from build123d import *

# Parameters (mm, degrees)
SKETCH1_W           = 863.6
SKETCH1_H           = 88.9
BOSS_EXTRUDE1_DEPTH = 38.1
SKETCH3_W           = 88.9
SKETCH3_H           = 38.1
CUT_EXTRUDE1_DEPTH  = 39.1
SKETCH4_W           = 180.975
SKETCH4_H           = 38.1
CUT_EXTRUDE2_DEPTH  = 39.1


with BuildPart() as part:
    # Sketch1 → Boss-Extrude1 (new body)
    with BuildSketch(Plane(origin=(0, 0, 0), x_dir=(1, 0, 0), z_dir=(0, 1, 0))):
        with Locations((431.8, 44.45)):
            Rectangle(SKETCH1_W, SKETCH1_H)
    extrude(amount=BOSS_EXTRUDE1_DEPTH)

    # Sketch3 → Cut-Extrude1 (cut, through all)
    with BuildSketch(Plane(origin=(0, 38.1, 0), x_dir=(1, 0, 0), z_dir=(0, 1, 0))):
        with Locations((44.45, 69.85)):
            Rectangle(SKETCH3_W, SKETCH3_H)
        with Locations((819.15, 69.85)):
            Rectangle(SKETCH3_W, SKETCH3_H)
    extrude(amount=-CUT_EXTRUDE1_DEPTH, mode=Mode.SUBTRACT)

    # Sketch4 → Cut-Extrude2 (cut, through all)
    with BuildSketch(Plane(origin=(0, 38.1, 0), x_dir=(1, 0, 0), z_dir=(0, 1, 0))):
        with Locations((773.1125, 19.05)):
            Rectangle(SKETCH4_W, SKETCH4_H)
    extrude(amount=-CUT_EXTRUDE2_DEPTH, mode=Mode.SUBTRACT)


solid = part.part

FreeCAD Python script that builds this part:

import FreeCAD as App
import Part
import Sketcher
Q = App.Units.Quantity


def add_polygon(sketch, points):
    """Adds a closed chain of lines whose ends are joined by coincident constraints."""
    first, n = sketch.GeometryCount, len(points)
    for a, b in zip(points, points[1:] + points[:1]):
        sketch.addGeometry(Part.LineSegment(App.Vector(*a, 0), App.Vector(*b, 0)), False)
    for i in range(n):
        sketch.addConstraint(Sketcher.Constraint("Coincident", first + i, 2, first + (i + 1) % n, 1))

doc = App.newDocument("Part")
body = doc.addObject("PartDesign::Body", "Body")

# Sketch on XZ plane
sketch1 = body.newObject("Sketcher::SketchObject", "Sketch")
sketch1.AttachmentSupport = (doc.getObject("XZ_Plane"), [""])
sketch1.MapMode = "FlatFace"
add_polygon(sketch1, [(0, -88.9), (0, 0), (863.6, 0), (863.6, -88.9)])  # lines 0-3
sketch1.addConstraint([
    Sketcher.Constraint("Vertical", 0),
    Sketcher.Constraint("Horizontal", 1),
    Sketcher.Constraint("Vertical", 2),
    Sketcher.Constraint("Horizontal", 3),
    Sketcher.Constraint("Coincident", 0, 2, -1, 1),
    Sketcher.Constraint("DistanceX", 1, 1, 1, 2, Q("34 in")),
    Sketcher.Constraint("DistanceY", 0, 1, 0, 2, Q("3.5 in")),
])
pad1 = body.newObject("PartDesign::Pad", "Pad")
pad1.Profile = sketch1
pad1.Length = Q("1.5 in")
pad1.Reversed = True

# Sketch on XZ plane
sketch2 = body.newObject("Sketcher::SketchObject", "Sketch001")
sketch2.AttachmentSupport = (doc.getObject("XZ_Plane"), [""])
sketch2.MapMode = "FlatFace"
sketch2.AttachmentOffset = App.Placement(App.Vector(0, 0, -1.5 * 25.4), App.Rotation())
add_polygon(sketch2, [(0, -88.9), (0, -50.8), (88.9, -50.8), (88.9, -88.9)])  # lines 0-3
add_polygon(sketch2, [(774.7, -88.9), (774.7, -50.8), (863.6, -50.8), (863.6, -88.9)])  # lines 4-7
sketch2.addConstraint([
    Sketcher.Constraint("Vertical", 0),
    Sketcher.Constraint("Horizontal", 1),
    Sketcher.Constraint("Vertical", 2),
    Sketcher.Constraint("Horizontal", 3),
    Sketcher.Constraint("Vertical", 4),
    Sketcher.Constraint("Horizontal", 5),
    Sketcher.Constraint("Vertical", 6),
    Sketcher.Constraint("Horizontal", 7),
    Sketcher.Constraint("PointOnObject", 0, 2, -2),
    Sketcher.Constraint("Horizontal", 1, 2, 4, 2),
    Sketcher.Constraint("Horizontal", 3, 2, 6, 2),
    Sketcher.Constraint("Equal", 3, 5),
    Sketcher.Constraint("DistanceX", 1, 1, 1, 2, Q("3.5 in")),
    Sketcher.Constraint("DistanceY", 0, 1, 0, 2, Q("1.5 in")),
    Sketcher.Constraint("DistanceY", 0, 2, -1, 1, Q("2 in")),
    Sketcher.Constraint("DistanceX", -1, 1, 5, 2, Q("34 in")),
])
pocket1 = body.newObject("PartDesign::Pocket", "Pocket")
pocket1.Profile = sketch2
pocket1.Type = "ThroughAll"
pocket1.Reversed = True

# Sketch on XZ plane
sketch3 = body.newObject("Sketcher::SketchObject", "Sketch002")
sketch3.AttachmentSupport = (doc.getObject("XZ_Plane"), [""])
sketch3.MapMode = "FlatFace"
sketch3.AttachmentOffset = App.Placement(App.Vector(0, 0, -1.5 * 25.4), App.Rotation())
add_polygon(sketch3, [(682.625, -38.1), (682.625, 0), (863.6, 0), (863.6, -38.1)])  # lines 0-3
sketch3.addConstraint([
    Sketcher.Constraint("Vertical", 0),
    Sketcher.Constraint("Horizontal", 1),
    Sketcher.Constraint("Vertical", 2),
    Sketcher.Constraint("Horizontal", 3),
    Sketcher.Constraint("PointOnObject", 0, 2, -1),
    Sketcher.Constraint("DistanceY", 0, 1, 0, 2, Q("1.5 in")),
    Sketcher.Constraint("DistanceX", -1, 1, 1, 2, Q("34 in")),
    Sketcher.Constraint("DistanceX", 1, 1, 1, 2, Q("7.125 in")),
])
pocket2 = body.newObject("PartDesign::Pocket", "Pocket001")
pocket2.Profile = sketch3
pocket2.Type = "ThroughAll"
pocket2.Reversed = True

doc.recompute()
